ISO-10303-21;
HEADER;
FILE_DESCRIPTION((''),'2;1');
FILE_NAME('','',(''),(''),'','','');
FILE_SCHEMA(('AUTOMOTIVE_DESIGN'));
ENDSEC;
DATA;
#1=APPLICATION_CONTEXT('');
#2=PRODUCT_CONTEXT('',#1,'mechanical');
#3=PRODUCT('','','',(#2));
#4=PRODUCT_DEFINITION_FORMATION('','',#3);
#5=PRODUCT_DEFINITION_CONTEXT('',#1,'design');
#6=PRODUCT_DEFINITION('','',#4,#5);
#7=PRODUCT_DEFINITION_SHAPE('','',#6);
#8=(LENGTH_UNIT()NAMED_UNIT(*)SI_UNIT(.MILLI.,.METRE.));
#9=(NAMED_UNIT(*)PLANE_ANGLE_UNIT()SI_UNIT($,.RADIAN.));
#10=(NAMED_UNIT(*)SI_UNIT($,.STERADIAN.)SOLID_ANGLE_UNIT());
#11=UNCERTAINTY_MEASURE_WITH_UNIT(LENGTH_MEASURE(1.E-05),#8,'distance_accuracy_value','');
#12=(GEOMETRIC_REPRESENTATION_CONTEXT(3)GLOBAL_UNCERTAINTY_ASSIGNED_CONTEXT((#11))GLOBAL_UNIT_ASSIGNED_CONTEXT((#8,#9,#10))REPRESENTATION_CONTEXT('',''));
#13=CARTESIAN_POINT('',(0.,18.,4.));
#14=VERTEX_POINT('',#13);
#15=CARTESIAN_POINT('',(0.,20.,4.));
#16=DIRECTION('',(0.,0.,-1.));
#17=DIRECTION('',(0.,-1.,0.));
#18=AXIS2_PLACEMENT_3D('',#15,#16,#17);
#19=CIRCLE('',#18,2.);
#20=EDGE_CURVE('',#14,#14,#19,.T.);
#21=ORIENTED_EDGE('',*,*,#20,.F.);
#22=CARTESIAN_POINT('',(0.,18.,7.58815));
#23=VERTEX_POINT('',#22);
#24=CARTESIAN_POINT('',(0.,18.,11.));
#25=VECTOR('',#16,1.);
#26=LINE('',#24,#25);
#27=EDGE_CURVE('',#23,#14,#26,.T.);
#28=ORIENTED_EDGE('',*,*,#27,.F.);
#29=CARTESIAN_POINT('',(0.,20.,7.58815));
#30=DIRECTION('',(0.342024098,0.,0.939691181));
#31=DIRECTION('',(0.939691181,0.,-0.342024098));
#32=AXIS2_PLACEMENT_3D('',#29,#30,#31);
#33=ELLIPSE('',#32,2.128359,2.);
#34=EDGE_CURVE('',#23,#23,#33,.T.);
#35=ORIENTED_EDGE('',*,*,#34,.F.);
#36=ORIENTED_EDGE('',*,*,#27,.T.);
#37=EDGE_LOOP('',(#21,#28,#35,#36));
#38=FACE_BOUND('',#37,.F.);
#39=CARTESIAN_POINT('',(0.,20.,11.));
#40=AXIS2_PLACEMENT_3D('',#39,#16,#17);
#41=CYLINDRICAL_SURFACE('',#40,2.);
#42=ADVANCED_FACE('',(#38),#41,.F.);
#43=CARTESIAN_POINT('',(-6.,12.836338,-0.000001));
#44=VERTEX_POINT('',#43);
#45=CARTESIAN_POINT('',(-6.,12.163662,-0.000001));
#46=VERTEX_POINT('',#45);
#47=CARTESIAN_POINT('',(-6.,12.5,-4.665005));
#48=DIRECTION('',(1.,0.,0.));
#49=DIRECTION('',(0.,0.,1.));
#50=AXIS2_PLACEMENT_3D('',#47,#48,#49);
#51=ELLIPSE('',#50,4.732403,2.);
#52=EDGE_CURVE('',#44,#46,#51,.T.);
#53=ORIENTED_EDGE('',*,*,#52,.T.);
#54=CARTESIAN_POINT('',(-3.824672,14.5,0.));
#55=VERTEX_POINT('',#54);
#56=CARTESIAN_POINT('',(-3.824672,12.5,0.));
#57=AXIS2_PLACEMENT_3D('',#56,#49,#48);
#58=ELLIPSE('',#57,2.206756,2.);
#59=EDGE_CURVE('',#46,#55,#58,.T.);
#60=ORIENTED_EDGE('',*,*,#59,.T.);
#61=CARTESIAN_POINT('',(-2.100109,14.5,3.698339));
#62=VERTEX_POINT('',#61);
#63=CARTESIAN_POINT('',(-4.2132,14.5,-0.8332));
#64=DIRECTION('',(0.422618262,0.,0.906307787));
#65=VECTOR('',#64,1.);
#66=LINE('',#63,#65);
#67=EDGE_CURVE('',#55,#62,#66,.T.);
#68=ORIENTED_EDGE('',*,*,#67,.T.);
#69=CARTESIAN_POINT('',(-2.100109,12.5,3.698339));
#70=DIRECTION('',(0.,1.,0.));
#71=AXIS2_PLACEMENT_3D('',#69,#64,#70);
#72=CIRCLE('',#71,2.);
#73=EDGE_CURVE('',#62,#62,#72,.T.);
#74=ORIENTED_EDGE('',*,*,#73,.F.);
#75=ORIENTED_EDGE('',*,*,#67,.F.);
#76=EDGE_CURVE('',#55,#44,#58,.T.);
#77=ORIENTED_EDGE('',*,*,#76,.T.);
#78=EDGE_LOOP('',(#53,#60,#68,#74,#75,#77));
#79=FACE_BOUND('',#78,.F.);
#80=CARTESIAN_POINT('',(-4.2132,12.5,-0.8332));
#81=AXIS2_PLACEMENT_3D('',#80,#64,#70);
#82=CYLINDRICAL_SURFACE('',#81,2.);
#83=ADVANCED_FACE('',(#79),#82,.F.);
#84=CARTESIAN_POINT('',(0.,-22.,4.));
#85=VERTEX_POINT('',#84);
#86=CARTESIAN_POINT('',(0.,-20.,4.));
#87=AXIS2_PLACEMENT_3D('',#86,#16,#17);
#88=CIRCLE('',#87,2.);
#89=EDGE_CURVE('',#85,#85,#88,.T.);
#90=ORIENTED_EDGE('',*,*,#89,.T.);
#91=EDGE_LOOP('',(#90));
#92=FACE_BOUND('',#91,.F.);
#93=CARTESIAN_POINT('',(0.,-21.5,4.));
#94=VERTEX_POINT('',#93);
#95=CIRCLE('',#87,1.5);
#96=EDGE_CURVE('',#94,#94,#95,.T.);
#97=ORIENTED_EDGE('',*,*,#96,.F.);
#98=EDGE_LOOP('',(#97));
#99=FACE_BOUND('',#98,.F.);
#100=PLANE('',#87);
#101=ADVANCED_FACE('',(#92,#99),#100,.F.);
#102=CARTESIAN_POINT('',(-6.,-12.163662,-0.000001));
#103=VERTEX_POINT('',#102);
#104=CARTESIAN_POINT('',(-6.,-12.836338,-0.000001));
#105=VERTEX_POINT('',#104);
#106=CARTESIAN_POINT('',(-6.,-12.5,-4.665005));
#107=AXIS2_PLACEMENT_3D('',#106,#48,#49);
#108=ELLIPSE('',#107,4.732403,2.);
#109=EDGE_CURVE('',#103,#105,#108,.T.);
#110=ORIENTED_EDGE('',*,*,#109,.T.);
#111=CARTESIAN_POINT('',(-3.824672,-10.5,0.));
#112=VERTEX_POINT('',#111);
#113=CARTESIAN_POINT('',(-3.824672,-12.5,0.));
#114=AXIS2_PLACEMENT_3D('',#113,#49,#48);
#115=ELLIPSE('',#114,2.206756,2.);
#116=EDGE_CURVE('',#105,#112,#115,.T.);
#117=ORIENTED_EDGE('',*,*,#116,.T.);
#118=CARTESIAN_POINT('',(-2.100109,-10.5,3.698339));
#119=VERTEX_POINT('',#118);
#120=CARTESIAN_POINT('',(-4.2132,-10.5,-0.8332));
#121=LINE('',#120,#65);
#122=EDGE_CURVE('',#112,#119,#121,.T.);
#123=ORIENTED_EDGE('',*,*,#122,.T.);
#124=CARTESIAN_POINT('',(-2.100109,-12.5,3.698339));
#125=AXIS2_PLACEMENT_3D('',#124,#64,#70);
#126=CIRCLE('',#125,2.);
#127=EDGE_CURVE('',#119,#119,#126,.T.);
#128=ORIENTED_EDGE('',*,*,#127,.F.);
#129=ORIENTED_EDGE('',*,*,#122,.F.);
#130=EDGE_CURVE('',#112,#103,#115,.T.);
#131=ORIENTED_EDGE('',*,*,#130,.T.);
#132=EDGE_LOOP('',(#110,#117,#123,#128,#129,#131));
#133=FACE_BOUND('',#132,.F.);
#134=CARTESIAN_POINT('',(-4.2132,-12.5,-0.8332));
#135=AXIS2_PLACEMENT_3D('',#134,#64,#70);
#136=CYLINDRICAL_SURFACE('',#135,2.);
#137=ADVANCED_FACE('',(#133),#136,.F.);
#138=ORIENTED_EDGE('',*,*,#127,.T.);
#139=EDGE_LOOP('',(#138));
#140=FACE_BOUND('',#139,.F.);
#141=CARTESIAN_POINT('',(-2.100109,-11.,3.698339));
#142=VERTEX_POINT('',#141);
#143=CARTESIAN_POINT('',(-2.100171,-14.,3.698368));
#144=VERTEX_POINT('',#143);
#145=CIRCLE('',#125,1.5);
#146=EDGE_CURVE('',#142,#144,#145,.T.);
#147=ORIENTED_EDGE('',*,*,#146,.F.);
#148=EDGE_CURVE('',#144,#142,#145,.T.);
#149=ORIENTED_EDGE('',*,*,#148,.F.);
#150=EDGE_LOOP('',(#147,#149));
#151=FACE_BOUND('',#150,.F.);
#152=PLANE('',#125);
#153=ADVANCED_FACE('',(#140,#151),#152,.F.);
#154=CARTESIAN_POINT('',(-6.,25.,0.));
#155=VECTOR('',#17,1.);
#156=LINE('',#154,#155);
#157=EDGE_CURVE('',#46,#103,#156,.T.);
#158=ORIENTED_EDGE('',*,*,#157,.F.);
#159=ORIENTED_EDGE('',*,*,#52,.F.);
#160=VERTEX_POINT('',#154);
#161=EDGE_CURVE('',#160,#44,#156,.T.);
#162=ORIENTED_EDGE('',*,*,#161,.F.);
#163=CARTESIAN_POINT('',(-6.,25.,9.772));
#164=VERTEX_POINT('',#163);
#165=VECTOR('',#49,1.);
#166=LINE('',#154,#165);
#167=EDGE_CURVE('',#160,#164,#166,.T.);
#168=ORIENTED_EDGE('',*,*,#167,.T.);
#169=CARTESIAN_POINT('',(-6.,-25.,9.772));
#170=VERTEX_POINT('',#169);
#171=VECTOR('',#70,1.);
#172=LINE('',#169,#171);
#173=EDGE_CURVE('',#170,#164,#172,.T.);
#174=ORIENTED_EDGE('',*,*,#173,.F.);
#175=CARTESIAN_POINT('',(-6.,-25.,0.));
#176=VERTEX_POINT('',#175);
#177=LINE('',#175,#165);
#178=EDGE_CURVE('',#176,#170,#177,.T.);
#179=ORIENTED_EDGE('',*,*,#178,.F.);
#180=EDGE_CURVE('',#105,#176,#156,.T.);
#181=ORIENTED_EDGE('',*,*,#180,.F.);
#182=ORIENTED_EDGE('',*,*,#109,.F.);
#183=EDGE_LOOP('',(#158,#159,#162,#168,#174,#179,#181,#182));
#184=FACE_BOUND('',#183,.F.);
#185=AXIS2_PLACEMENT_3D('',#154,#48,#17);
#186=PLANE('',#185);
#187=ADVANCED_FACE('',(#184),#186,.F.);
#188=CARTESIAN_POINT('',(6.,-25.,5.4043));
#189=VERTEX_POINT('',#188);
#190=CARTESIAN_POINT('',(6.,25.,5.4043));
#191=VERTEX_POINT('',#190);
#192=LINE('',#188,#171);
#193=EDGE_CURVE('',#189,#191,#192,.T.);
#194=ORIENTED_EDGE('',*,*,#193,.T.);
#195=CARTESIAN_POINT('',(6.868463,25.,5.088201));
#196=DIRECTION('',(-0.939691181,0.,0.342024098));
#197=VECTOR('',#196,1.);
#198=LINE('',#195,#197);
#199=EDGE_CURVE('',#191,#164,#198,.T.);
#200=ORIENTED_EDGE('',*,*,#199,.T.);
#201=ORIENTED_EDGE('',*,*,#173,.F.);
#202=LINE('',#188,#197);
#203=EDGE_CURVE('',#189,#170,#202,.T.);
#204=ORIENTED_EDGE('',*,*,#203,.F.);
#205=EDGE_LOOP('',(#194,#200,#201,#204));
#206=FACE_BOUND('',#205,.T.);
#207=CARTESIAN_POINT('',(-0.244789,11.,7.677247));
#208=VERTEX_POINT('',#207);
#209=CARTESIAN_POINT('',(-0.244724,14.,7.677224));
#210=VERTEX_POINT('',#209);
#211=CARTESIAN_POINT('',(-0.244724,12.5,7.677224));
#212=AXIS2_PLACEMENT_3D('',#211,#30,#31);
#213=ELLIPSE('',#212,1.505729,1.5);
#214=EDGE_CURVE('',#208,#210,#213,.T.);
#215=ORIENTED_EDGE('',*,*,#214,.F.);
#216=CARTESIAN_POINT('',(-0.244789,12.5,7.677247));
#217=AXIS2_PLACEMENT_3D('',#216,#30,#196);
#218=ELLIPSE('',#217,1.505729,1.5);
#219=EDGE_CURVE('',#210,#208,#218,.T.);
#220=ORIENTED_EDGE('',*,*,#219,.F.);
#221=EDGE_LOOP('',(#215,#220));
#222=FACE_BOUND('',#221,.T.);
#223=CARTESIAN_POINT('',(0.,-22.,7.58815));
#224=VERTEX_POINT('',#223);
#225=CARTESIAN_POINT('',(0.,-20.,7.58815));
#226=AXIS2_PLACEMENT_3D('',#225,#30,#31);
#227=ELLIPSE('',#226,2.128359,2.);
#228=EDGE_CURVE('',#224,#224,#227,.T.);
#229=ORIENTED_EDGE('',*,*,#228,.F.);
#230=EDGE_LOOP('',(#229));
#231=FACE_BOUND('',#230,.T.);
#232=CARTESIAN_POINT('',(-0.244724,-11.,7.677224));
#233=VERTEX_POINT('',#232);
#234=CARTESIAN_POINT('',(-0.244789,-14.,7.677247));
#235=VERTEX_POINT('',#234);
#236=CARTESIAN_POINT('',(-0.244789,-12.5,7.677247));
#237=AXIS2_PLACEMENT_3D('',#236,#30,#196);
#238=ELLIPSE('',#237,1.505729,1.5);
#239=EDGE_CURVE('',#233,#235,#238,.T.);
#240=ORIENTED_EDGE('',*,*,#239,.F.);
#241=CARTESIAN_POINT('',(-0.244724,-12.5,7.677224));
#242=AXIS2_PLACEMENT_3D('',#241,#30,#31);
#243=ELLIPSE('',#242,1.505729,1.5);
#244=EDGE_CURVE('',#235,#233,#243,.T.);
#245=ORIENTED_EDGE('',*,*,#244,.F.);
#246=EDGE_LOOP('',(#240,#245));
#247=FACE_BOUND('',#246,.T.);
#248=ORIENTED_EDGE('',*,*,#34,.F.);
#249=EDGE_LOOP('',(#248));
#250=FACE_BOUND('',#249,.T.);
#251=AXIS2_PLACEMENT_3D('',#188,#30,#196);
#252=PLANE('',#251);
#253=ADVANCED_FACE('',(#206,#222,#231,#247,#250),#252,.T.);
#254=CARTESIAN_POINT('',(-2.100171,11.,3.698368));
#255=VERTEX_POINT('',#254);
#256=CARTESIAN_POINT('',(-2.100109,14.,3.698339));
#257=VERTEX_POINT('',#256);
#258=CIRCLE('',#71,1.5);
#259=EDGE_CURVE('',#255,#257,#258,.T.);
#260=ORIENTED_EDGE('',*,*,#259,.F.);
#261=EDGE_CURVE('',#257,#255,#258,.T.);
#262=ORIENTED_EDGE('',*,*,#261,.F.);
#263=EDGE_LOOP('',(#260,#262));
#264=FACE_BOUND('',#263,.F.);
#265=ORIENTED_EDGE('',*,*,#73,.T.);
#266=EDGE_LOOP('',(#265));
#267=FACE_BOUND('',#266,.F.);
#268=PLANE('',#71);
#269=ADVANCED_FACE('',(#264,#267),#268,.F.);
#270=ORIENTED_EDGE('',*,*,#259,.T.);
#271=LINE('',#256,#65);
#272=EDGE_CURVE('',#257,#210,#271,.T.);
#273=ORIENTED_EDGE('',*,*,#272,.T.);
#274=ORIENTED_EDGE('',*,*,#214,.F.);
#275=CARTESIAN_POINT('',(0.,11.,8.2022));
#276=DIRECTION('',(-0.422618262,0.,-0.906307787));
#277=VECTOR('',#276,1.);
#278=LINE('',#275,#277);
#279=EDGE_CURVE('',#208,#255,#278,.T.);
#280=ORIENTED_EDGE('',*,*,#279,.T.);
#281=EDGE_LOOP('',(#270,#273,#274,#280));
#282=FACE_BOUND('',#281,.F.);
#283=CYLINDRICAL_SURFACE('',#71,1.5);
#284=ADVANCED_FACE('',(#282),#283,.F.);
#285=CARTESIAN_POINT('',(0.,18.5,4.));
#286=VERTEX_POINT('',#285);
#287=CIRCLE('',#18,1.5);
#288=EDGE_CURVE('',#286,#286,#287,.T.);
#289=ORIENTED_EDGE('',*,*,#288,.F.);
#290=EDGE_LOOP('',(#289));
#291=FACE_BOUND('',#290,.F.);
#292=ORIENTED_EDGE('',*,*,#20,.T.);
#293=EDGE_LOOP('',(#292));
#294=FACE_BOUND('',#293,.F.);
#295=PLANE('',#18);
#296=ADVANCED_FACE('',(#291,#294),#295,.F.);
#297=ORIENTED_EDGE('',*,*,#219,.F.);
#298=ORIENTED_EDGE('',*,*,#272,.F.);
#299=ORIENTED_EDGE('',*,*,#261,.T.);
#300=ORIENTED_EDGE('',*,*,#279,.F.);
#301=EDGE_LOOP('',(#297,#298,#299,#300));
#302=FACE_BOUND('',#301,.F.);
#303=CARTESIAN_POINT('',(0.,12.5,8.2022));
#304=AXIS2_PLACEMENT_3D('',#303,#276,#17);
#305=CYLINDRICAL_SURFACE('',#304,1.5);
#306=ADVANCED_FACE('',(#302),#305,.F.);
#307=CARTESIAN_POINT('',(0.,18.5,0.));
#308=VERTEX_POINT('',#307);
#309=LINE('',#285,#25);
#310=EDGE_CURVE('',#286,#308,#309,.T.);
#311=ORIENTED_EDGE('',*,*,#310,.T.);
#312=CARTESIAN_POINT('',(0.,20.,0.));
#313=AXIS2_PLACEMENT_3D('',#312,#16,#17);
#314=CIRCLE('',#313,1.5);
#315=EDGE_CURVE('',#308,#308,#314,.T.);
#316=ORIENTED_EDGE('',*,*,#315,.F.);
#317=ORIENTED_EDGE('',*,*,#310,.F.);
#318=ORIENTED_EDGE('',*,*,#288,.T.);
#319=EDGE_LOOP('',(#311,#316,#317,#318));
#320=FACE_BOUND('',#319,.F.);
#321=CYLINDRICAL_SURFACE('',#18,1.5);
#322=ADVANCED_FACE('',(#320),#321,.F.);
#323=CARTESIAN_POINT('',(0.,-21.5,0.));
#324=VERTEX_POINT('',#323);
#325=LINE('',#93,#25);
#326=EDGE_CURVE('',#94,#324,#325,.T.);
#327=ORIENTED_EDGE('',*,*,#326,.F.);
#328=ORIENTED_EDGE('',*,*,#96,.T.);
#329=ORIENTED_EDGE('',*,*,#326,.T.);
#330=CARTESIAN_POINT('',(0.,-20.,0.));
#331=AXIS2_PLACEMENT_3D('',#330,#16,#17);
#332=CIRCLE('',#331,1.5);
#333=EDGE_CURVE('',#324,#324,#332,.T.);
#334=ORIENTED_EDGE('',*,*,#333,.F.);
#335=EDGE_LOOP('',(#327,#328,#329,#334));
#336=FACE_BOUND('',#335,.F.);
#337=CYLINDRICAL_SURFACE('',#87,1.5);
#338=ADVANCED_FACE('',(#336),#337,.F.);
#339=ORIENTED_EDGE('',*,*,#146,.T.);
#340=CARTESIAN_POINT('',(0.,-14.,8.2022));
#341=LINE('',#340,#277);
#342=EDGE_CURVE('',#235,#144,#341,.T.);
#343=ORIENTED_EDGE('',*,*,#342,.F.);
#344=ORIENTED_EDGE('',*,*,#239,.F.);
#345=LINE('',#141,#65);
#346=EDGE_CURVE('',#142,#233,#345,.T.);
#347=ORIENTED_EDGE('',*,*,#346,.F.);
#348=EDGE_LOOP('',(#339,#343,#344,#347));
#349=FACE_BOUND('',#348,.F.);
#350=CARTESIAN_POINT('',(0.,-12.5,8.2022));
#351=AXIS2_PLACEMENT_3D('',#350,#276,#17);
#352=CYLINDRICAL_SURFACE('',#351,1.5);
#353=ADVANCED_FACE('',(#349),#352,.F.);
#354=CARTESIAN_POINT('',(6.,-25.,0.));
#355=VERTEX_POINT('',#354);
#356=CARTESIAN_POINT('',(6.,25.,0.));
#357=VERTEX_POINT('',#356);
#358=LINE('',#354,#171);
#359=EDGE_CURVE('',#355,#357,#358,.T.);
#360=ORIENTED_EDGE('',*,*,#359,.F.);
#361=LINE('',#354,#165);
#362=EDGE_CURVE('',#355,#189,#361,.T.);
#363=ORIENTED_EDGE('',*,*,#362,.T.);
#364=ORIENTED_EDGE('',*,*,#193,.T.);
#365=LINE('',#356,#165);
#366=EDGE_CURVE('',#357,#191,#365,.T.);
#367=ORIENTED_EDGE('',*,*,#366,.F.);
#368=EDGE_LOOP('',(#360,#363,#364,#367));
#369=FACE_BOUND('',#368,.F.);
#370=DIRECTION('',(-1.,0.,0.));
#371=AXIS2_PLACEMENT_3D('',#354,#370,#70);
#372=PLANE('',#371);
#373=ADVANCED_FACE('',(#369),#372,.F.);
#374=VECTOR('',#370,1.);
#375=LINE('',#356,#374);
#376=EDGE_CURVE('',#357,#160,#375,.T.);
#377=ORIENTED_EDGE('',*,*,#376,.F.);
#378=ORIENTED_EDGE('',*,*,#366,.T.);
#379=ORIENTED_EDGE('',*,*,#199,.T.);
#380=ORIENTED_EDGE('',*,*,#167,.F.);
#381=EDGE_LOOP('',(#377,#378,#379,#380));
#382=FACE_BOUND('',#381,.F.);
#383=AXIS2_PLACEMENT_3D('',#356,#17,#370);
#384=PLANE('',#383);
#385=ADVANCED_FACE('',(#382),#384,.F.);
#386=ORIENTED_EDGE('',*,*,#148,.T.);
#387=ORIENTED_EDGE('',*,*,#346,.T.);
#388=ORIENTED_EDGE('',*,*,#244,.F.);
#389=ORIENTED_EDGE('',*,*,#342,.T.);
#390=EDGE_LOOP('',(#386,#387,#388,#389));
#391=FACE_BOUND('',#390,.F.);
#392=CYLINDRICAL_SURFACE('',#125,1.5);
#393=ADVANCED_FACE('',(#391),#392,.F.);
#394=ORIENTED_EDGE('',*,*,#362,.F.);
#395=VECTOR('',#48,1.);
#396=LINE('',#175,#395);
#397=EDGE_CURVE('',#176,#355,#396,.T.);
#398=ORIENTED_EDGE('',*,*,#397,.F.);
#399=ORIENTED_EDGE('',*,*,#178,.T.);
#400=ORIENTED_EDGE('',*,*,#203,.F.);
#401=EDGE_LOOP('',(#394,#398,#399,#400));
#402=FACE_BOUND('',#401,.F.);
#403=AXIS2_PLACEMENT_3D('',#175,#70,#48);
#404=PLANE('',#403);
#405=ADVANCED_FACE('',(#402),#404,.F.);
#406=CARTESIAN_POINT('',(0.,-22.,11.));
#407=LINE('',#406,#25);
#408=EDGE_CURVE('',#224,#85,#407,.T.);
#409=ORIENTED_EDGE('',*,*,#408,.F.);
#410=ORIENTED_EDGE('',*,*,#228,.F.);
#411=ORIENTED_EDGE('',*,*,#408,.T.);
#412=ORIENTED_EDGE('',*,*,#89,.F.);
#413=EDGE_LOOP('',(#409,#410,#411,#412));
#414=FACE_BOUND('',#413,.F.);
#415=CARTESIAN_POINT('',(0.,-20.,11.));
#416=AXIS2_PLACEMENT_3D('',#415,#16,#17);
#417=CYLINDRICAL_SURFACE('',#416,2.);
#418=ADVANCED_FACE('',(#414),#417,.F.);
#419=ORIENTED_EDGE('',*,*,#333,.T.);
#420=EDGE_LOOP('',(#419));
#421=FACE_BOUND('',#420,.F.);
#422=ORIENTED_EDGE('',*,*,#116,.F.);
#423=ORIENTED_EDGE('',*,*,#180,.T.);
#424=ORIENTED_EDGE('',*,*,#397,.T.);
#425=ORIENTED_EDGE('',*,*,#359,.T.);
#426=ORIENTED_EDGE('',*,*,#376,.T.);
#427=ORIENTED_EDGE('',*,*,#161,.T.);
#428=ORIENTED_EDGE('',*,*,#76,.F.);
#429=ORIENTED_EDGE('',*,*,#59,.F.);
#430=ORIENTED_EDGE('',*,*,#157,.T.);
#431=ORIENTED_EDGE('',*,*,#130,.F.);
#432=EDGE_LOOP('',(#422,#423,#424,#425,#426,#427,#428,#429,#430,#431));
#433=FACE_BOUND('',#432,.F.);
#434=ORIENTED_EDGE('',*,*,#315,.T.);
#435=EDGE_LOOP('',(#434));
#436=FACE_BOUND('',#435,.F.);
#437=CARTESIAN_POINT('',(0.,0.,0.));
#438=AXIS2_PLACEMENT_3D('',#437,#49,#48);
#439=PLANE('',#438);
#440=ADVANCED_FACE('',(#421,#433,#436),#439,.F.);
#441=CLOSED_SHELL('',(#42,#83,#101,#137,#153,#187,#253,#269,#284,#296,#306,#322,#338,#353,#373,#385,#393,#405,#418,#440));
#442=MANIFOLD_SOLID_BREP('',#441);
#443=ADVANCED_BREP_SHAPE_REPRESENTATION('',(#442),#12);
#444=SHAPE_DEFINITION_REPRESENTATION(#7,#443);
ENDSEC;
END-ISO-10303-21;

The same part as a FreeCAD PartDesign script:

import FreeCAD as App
import Part
import Sketcher
from FreeCAD import Vector
Q = App.Units.Quantity


def add_polygon(sketch, points):
    """Adds a closed chain of lines whose ends are joined by coincident constraints."""
    first, n = sketch.GeometryCount, len(points)
    for a, b in zip(points, points[1:] + points[:1]):
        sketch.addGeometry(Part.LineSegment(App.Vector(*a, 0), App.Vector(*b, 0)), False)
    for i in range(n):
        sketch.addConstraint(Sketcher.Constraint("Coincident", first + i, 2, first + (i + 1) % n, 1))

doc = App.newDocument("Part")
body = doc.addObject("PartDesign::Body", "Body")

# Sketch on XY plane
sketch1 = body.newObject("Sketcher::SketchObject", "Sketch")
sketch1.AttachmentSupport = (doc.getObject("XY_Plane"), [""])
sketch1.MapMode = "FlatFace"
add_polygon(sketch1, [(-6, 25), (-6, -25), (6, -25), (6, 25)])  # lines 0-3
sketch1.addConstraint([
    Sketcher.Constraint("Vertical", 0),
    Sketcher.Constraint("Horizontal", 1),
    Sketcher.Constraint("Vertical", 2),
    Sketcher.Constraint("Horizontal", 3),
    Sketcher.Constraint("Symmetric", 0, 2, 2, 2, -1, 1),
    Sketcher.Constraint("DistanceX", 1, 1, 1, 2, 12.0),
    Sketcher.Constraint("DistanceY", 0, 2, 0, 1, 50.0),
])
pad1 = body.newObject("PartDesign::Pad", "Pad")
pad1.Profile = sketch1
pad1.Length = 11

# Sketch on XZ plane
sketch2 = body.newObject("Sketcher::SketchObject", "Sketch001")
sketch2.AttachmentSupport = (doc.getObject("XZ_Plane"), [""])
sketch2.MapMode = "FlatFace"
sketch2.AttachmentOffset = App.Placement(Vector(0, 0, 25), App.Rotation())
add_polygon(sketch2, [(6, 11), (-6, 11), (6, 5.4043)])  # lines 0-2
sketch2.addConstraint([
    Sketcher.Constraint("Horizontal", 0),
    Sketcher.Constraint("Vertical", 2),
    Sketcher.Constraint("Angle", 1, Q("-25 deg")),
    Sketcher.Constraint("DistanceX", 0, 2, 0, 1, 12.0),
    Sketcher.Constraint("DistanceX", 0, 2, -1, 1, 6.0),
    Sketcher.Constraint("DistanceY", -1, 1, 0, 2, 11.0),
])
pocket1 = body.newObject("PartDesign::Pocket", "Pocket")
pocket1.Profile = sketch2
pocket1.Type = "ThroughAll"

# Sketch on XY plane
sketch3 = body.newObject("Sketcher::SketchObject", "Sketch002")
sketch3.AttachmentSupport = (doc.getObject("XY_Plane"), [""])
sketch3.MapMode = "FlatFace"
sketch3.AttachmentOffset = App.Placement(Vector(0, 0, 11), App.Rotation())
sketch3.addGeometry([
    Part.Circle(Vector(0, 20, 0), Vector(0, 0, 1), 1.5),
    Part.Circle(Vector(0, -20, 0), Vector(0, 0, 1), 1.5),
], False)
sketch3.addConstraint([
    Sketcher.Constraint("Equal", 0, 1),
    Sketcher.Constraint("Symmetric", 0, 3, 1, 3, -1, 1),
    Sketcher.Constraint("PointOnObject", 0, 3, -2),
    Sketcher.Constraint("Diameter", 0, 3.0),
    Sketcher.Constraint("DistanceY", -1, 1, 0, 3, 20.0),
])
doc.recompute()
hole = body.newObject("PartDesign::Hole", "Hole")
hole.Profile = sketch3
hole.ThreadType = "None"
hole.Diameter = 3
hole.DepthType = "ThroughAll"
hole.HoleCutType = "Counterbore"
hole.HoleCutDiameter = 4
hole.HoleCutDepth = 7

# Sketch on an angled plane
sketch4 = body.newObject("Sketcher::SketchObject", "Sketch003")
sketch4.Placement = App.Placement(Vector(3.141625, 0, 6.737236), App.Rotation(Vector(0.906307787, 0, -0.422618262), Vector(0, 1, 0), Vector(0.422618262, 0, 0.906307787), "ZXY"))
sketch4.addGeometry([
    Part.Circle(Vector(-3.4664, -12.5, 0), Vector(0, 0, 1), 1.5),
    Part.Circle(Vector(-3.4664, 12.5, 0), Vector(0, 0, 1), 1.5),
], False)
sketch4.addConstraint([
    Sketcher.Constraint("Equal", 0, 1),
    Sketcher.Constraint("Symmetric", 0, 3, 1, 3, -1),
    Sketcher.Constraint("Diameter", 0, 3.0),
    Sketcher.Constraint("DistanceY", 0, 3, 1, 3, 25.0),
    Sketcher.Constraint("DistanceX", 0, 3, -1, 1, 3.4664),
])
doc.recompute()
hole2 = body.newObject("PartDesign::Hole", "Hole001")
hole2.Profile = sketch4
hole2.ThreadType = "None"
hole2.Diameter = 3
hole2.DepthType = "ThroughAll"

# Sketch on an angled plane
sketch5 = body.newObject("Sketcher::SketchObject", "Sketch004")
sketch5.Placement = App.Placement(Vector(-1.071638, 0, -2.298135), App.Rotation(Vector(-0.906307787, 0, 0.422618262), Vector(0, 1, 0), Vector(-0.422618262, 0, -0.906307787), "ZXY"))
sketch5.addGeometry([
    Part.Circle(Vector(3.46633, 12.5, 0), Vector(0, 0, 1), 1.5),
    Part.Circle(Vector(3.46633, -12.5, 0), Vector(0, 0, 1), 1.5),
], False)
sketch5.addConstraint([
    Sketcher.Constraint("Equal", 0, 1),
    Sketcher.Constraint("Symmetric", 0, 3, 1, 3, -1),
    Sketcher.Constraint("Diameter", 0, 3.0),
    Sketcher.Constraint("DistanceY", 1, 3, 0, 3, 25.0),
    Sketcher.Constraint("DistanceX", -1, 1, 0, 3, 3.4663),
])
doc.recompute()
hole3 = body.newObject("PartDesign::Hole", "Hole002")
hole3.Profile = sketch5
hole3.ThreadType = "None"
hole3.Diameter = 3
hole3.DepthType = "ThroughAll"
hole3.HoleCutType = "Counterbore"
hole3.HoleCutDiameter = 4
hole3.HoleCutDepth = 5

# Sketch on XZ plane
sketch6 = body.newObject("Sketcher::SketchObject", "Sketch005")
sketch6.AttachmentSupport = (doc.getObject("XZ_Plane"), [""])
sketch6.MapMode = "FlatFace"
sketch6.AttachmentOffset = App.Placement(Vector(0, 0, 25), App.Rotation())
add_polygon(sketch6, [(-6, 9.772), (6, 5.4043), (-6, 11)])  # lines 0-2
sketch6.addConstraint([
    Sketcher.Constraint("Vertical", 2),
    Sketcher.Constraint("Angle", 0, Q("-20.0002 deg")),
    Sketcher.Constraint("Angle", 1, Q("155 deg")),
    Sketcher.Constraint("DistanceX", -1, 1, 0, 2, 6.0),
    Sketcher.Constraint("DistanceX", 1, 2, -1, 1, 6.0),
    Sketcher.Constraint("DistanceY", -1, 1, 1, 2, 11.0),
])
pocket2 = body.newObject("PartDesign::Pocket", "Pocket001")
pocket2.Profile = sketch6
pocket2.Type = "ThroughAll"

doc.recompute()
